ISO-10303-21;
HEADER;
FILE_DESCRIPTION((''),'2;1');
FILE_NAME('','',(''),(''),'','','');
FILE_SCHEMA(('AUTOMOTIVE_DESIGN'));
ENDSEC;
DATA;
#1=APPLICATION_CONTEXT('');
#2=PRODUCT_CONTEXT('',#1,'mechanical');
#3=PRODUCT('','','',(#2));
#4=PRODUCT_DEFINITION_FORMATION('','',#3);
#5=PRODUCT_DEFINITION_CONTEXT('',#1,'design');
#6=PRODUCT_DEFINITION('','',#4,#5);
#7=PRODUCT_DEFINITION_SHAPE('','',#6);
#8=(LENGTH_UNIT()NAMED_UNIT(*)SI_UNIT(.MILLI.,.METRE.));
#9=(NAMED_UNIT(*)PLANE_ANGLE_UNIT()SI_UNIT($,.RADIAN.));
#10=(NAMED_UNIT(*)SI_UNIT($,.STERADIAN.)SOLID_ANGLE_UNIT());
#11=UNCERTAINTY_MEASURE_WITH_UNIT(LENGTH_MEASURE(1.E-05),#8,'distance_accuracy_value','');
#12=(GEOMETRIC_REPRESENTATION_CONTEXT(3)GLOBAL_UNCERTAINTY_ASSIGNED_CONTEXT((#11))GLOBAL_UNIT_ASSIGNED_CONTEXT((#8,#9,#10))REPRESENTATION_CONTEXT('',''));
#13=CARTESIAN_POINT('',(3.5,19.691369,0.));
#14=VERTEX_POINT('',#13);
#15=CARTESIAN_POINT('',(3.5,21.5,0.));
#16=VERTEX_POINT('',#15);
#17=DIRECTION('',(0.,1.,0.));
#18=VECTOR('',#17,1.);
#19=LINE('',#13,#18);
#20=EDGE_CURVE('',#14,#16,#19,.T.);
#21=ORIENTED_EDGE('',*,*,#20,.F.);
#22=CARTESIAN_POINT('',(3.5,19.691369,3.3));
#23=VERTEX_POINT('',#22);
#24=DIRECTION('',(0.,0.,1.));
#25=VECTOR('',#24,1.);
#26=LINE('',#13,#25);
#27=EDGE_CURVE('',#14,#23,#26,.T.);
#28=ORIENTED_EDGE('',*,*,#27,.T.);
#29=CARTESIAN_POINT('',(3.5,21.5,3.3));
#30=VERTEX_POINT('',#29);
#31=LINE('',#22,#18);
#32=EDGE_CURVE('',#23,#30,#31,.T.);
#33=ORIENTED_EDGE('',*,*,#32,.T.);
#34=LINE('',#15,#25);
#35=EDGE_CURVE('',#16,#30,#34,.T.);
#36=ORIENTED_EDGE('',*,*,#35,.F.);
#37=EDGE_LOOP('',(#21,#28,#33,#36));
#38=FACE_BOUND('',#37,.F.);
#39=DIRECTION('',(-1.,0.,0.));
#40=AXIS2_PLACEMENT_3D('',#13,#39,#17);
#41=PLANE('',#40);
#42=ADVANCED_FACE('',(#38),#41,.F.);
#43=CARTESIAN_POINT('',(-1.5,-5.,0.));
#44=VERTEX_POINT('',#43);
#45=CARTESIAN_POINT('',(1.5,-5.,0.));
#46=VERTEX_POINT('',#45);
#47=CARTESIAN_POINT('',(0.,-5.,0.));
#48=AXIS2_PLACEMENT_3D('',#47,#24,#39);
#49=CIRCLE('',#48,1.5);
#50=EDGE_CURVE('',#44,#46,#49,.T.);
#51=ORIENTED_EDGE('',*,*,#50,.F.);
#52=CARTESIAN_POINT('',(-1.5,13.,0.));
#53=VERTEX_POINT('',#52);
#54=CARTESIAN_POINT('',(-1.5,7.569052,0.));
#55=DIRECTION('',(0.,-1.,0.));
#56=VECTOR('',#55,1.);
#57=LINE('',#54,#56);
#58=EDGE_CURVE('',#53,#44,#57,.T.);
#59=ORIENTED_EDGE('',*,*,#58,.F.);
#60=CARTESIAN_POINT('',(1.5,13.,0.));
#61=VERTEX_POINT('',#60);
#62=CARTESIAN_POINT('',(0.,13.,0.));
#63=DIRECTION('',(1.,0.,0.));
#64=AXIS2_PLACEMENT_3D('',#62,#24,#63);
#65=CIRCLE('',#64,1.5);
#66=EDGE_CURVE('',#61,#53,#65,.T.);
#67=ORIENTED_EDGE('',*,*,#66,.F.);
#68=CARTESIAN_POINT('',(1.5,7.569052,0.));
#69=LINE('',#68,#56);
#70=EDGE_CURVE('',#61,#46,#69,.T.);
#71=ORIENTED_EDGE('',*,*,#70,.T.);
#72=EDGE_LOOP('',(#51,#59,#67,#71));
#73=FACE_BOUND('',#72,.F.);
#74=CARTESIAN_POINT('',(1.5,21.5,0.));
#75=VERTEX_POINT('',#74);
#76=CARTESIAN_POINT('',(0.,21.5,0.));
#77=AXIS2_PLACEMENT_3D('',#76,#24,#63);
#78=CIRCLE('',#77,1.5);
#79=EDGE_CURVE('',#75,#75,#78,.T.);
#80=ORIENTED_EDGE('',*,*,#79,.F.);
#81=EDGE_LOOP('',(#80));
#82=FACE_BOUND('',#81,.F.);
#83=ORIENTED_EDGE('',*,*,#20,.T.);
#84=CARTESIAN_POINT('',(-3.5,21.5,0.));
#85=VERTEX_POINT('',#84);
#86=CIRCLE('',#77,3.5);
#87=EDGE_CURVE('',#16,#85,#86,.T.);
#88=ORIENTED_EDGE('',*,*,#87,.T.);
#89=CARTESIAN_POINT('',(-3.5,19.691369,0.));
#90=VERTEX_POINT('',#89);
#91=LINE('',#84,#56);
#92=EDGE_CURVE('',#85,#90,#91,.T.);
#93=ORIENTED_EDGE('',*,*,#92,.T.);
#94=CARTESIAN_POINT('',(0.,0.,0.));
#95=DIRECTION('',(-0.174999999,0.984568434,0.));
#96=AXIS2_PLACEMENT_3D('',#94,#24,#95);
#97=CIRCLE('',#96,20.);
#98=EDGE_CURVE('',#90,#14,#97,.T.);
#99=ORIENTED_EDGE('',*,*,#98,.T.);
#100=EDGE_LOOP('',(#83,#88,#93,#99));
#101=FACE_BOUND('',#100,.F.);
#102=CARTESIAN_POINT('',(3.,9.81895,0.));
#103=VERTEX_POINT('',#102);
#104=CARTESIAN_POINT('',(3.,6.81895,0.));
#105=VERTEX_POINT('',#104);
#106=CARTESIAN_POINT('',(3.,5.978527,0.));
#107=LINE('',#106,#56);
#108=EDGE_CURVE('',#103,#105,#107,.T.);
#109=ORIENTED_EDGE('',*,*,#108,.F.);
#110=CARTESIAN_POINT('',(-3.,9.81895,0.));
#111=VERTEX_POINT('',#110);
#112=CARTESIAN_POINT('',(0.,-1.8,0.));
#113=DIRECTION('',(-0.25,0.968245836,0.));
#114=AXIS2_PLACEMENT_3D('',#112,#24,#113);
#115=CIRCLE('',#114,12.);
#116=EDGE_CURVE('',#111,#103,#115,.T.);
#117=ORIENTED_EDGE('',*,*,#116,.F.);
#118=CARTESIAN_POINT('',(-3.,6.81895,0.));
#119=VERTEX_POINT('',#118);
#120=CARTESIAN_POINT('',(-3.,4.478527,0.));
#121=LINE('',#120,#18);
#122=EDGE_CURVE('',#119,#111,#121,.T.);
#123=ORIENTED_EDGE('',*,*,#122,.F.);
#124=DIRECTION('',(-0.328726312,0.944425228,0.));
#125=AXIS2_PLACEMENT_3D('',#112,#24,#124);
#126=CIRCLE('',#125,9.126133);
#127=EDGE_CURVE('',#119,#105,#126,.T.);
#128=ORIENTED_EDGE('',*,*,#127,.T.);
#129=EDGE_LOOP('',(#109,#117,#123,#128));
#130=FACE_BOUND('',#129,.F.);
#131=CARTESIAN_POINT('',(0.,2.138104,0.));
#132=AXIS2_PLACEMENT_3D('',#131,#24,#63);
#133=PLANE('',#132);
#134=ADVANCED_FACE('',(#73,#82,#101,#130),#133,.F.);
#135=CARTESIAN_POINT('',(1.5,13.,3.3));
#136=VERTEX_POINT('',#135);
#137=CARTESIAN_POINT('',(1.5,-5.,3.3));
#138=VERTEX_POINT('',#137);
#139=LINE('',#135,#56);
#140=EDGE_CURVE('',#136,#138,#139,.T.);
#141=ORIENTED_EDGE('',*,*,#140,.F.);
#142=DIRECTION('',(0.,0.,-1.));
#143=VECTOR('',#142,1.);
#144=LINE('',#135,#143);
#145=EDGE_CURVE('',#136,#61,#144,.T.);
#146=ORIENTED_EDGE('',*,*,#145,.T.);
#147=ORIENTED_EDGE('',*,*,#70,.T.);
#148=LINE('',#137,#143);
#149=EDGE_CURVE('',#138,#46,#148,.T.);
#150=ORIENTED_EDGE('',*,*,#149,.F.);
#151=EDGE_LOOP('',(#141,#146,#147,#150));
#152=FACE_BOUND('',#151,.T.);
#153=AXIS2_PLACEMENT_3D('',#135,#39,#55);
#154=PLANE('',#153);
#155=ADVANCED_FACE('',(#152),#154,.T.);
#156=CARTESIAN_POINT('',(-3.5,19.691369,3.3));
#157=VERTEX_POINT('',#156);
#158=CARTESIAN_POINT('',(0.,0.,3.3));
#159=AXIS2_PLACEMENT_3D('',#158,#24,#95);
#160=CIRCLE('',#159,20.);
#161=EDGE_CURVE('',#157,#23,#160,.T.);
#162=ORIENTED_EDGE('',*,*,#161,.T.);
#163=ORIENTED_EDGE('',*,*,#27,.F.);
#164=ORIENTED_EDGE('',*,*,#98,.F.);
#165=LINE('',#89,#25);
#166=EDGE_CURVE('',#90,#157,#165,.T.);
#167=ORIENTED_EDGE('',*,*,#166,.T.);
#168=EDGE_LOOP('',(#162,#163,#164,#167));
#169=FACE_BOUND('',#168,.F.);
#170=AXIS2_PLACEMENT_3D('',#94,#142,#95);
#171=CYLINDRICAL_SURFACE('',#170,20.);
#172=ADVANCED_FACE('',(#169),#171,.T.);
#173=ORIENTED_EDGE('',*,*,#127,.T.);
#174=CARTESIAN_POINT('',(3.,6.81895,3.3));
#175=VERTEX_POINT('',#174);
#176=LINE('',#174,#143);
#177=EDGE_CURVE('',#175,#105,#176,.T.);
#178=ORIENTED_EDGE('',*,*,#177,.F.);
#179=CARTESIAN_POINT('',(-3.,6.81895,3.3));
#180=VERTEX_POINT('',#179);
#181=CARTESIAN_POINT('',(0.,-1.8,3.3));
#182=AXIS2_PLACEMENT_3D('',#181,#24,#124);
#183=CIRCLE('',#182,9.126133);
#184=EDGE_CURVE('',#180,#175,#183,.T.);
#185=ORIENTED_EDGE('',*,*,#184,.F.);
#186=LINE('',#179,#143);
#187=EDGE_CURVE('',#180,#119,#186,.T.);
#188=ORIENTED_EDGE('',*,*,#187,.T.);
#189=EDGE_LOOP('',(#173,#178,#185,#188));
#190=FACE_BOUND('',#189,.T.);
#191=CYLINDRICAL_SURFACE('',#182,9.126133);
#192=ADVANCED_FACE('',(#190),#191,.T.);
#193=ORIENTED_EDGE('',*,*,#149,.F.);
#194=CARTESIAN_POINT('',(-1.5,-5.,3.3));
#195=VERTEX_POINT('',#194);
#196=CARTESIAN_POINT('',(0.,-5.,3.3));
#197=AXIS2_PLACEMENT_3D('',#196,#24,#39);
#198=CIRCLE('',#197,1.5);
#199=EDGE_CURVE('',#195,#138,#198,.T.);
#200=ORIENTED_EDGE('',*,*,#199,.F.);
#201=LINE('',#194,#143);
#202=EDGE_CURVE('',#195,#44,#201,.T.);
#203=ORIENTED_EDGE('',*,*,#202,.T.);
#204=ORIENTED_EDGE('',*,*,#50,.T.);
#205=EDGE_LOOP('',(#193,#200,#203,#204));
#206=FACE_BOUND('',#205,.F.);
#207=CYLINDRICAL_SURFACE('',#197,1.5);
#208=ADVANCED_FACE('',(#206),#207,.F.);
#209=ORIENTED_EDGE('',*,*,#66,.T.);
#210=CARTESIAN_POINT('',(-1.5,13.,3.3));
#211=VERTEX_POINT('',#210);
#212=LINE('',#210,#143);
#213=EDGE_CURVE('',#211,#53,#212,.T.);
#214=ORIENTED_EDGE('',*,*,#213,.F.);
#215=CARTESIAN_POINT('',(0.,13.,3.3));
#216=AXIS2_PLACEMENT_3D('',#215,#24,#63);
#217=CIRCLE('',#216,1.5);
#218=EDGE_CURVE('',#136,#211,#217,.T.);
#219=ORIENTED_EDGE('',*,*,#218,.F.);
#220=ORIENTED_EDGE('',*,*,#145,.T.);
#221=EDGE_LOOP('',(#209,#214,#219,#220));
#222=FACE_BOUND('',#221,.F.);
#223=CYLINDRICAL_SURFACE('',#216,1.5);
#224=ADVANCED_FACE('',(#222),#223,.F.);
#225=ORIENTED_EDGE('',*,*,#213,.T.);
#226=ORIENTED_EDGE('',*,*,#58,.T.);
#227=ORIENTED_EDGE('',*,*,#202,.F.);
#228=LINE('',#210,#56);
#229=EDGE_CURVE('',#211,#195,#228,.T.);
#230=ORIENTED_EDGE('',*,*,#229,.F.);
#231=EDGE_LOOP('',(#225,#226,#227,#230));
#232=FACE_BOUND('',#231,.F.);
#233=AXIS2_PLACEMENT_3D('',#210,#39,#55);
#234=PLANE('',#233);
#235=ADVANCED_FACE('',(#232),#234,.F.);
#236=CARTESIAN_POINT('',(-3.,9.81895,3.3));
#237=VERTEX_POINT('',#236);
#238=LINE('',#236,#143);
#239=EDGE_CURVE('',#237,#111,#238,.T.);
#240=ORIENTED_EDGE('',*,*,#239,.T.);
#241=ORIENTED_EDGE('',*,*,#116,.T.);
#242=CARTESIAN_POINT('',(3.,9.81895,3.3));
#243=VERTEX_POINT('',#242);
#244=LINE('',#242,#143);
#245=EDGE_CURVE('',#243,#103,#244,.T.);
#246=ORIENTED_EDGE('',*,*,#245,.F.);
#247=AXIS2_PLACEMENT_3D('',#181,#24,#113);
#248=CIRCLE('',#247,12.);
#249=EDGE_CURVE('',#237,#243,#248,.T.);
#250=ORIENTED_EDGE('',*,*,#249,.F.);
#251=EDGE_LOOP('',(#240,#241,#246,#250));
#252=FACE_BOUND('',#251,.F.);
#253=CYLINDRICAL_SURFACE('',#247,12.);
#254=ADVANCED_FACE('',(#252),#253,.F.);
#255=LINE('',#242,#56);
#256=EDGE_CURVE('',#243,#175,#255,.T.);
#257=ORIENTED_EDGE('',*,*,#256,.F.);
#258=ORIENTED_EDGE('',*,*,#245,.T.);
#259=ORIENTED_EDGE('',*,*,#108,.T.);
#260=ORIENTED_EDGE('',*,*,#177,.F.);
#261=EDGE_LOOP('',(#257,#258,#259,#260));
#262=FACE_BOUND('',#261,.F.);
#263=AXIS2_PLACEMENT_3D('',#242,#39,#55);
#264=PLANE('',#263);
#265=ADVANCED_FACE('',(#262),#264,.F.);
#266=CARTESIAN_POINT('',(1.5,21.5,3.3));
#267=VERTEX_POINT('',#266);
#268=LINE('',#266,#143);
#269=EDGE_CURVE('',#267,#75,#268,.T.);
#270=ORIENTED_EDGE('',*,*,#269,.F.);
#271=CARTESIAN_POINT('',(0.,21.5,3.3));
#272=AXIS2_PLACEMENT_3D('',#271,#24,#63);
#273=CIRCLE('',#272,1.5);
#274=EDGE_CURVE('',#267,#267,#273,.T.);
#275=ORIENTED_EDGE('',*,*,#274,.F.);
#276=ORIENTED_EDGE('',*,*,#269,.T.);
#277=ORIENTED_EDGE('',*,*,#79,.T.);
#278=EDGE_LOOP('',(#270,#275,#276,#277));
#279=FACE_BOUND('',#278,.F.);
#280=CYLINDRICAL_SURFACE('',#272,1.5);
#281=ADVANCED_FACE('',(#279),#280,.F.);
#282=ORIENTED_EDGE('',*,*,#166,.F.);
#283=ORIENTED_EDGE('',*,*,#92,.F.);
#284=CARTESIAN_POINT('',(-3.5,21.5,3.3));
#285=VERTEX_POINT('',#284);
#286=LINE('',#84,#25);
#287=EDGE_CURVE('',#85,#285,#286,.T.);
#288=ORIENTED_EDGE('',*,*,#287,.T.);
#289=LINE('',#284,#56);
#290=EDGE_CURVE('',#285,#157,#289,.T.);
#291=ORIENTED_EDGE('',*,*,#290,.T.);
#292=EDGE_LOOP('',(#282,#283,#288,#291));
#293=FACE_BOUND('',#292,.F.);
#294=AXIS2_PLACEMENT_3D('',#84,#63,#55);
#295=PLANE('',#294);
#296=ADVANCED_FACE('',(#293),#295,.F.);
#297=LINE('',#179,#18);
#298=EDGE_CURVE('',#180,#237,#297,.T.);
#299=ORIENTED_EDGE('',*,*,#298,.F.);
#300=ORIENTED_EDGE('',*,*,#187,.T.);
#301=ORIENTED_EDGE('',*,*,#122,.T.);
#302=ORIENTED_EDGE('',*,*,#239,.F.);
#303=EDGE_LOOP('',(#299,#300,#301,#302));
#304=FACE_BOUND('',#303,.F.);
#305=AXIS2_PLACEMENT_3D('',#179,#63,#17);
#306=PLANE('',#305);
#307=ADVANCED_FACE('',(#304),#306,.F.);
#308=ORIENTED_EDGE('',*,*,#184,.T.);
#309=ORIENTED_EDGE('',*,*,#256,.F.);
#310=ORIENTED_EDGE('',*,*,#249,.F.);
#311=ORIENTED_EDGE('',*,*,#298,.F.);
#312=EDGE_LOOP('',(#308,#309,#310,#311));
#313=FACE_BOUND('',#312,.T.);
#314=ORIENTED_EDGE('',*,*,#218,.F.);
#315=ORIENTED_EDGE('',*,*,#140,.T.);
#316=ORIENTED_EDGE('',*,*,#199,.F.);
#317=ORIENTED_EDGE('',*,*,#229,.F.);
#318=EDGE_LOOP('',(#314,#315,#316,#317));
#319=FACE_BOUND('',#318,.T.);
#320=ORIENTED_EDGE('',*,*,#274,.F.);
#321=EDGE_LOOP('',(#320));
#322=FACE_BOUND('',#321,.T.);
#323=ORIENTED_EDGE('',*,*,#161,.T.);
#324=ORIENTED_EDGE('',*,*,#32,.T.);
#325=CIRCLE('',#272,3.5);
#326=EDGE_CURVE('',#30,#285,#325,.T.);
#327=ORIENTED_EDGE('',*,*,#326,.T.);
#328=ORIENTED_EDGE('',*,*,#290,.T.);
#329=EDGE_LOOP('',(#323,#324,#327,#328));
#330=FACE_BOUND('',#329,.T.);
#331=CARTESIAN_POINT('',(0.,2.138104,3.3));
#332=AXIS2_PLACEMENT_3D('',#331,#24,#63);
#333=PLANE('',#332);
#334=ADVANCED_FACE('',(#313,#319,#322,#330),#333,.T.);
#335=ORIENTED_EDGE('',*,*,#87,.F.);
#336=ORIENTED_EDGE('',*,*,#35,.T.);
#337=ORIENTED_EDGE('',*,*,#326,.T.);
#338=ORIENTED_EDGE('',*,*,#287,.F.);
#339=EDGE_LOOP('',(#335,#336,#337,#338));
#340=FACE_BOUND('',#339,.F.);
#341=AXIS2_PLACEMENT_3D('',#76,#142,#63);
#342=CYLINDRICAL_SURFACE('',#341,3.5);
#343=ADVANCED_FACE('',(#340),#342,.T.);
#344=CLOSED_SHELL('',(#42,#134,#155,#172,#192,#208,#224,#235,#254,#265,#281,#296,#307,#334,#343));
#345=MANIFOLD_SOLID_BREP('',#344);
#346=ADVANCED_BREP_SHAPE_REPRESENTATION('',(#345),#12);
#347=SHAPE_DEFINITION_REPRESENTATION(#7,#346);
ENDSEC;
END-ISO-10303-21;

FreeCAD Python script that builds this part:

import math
import FreeCAD as App
import Part
import Sketcher

V = App.Vector
Q = App.Units.Quantity

doc = App.newDocument("Part")
body = doc.addObject("PartDesign::Body", "Body")

# Sketch on XY plane
sketch1 = doc.addObject("Sketcher::SketchObject", "Sketch")
body.addObject(sketch1)
sketch1.AttachmentSupport = (doc.XY_Plane, [""])
sketch1.MapMode = "FlatFace"
sketch1.addGeometry(Part.ArcOfCircle(Part.Circle(V(0, 21.5, 0), V(0, 0, 1), 3.5), math.radians(0), math.radians(180)), False)
sketch1.addGeometry(Part.LineSegment(V(-3.5, 21.5, 0), V(-3.5, 19.691369, 0)), False)
sketch1.addGeometry(Part.ArcOfCircle(Part.Circle(V(0, 0, 0), V(0, 0, 1), 20), math.radians(100.078658), math.radians(439.921342)), False)
sketch1.addGeometry(Part.LineSegment(V(3.5, 19.691369, 0), V(3.5, 21.5, 0)), False)
sketch1.addConstraint(Sketcher.Constraint("Tangent", 0, 2, 1, 1))
sketch1.addConstraint(Sketcher.Constraint("Coincident", 1, 2, 2, 1))
sketch1.addConstraint(Sketcher.Constraint("Coincident", 2, 2, 3, 1))
sketch1.addConstraint(Sketcher.Constraint("Tangent", 3, 2, 0, 1))
sketch1.addConstraint(Sketcher.Constraint("Vertical", 1))
sketch1.addConstraint(Sketcher.Constraint("Vertical", 3))
sketch1.addConstraint(Sketcher.Constraint("Coincident", 2, 3, -1, 1))
sketch1.addConstraint(Sketcher.Constraint("PointOnObject", 0, 3, -2))
sketch1.addConstraint(Sketcher.Constraint("Radius", 2, Q("20 mm")))
sketch1.addConstraint(Sketcher.Constraint("Radius", 0, Q("3.5 mm")))
sketch1.addConstraint(Sketcher.Constraint("DistanceY", -1, 1, 0, 3, Q("21.5 mm")))
pad1 = doc.addObject("PartDesign::Pad", "Pad")
body.addObject(pad1)
pad1.Profile = sketch1
pad1.Length = 3.3

# Sketch on XY plane
sketch2 = doc.addObject("Sketcher::SketchObject", "Sketch001")
body.addObject(sketch2)
sketch2.AttachmentSupport = (doc.XY_Plane, [""])
sketch2.MapMode = "FlatFace"
sketch2.AttachmentOffset = App.Placement(V(0, 0, 3.3), App.Rotation())
sketch2.addGeometry(Part.Circle(V(0, 21.5, 0), V(0, 0, 1), 1.5), False)
sketch2.addConstraint(Sketcher.Constraint("PointOnObject", 0, 3, -2))
sketch2.addConstraint(Sketcher.Constraint("Diameter", 0, Q("3 mm")))
sketch2.addConstraint(Sketcher.Constraint("DistanceY", -1, 1, 0, 3, Q("21.5 mm")))
pocket1 = doc.addObject("PartDesign::Pocket", "Pocket")
body.addObject(pocket1)
pocket1.Profile = sketch2
pocket1.Type = "ThroughAll"

# Sketch on XY plane
sketch3 = doc.addObject("Sketcher::SketchObject", "Sketch002")
body.addObject(sketch3)
sketch3.AttachmentSupport = (doc.XY_Plane, [""])
sketch3.MapMode = "FlatFace"
sketch3.AttachmentOffset = App.Placement(V(0, 0, 3.3), App.Rotation())
sketch3.addGeometry(Part.LineSegment(V(-1.5, 13, 0), V(-1.5, -5, 0)), False)
sketch3.addGeometry(Part.ArcOfCircle(Part.Circle(V(0, -5, 0), V(0, 0, 1), 1.5), math.radians(180), math.radians(360)), False)
sketch3.addGeometry(Part.LineSegment(V(1.5, -5, 0), V(1.5, 13, 0)), False)
sketch3.addGeometry(Part.ArcOfCircle(Part.Circle(V(0, 13, 0), V(0, 0, 1), 1.5), math.radians(0), math.radians(180)), False)
sketch3.addGeometry(Part.ArcOfCircle(Part.Circle(V(0, -1.8, 0), V(0, 0, 1), 9.1), math.radians(109), math.radians(431)), False)
sketch3.addGeometry(Part.LineSegment(V(-3, 6.8, 0), V(-3, 9.8, 0)), False)
sketch3.addGeometry(Part.ArcOfCircle(Part.Circle(V(0, -1.8, 0), V(0, 0, 1), 12), math.radians(104), math.radians(436)), False)
sketch3.addGeometry(Part.LineSegment(V(3, 9.8, 0), V(3, 6.8, 0)), False)
sketch3.addConstraint(Sketcher.Constraint("Tangent", 0, 2, 1, 1))
sketch3.addConstraint(Sketcher.Constraint("Tangent", 1, 2, 2, 1))
sketch3.addConstraint(Sketcher.Constraint("Tangent", 2, 2, 3, 1))
sketch3.addConstraint(Sketcher.Constraint("Tangent", 3, 2, 0, 1))
sketch3.addConstraint(Sketcher.Constraint("Coincident", 4, 1, 5, 1))
sketch3.addConstraint(Sketcher.Constraint("Coincident", 5, 2, 6, 1))
sketch3.addConstraint(Sketcher.Constraint("Coincident", 6, 2, 7, 1))
sketch3.addConstraint(Sketcher.Constraint("Coincident", 7, 2, 4, 2))
sketch3.addConstraint(Sketcher.Constraint("Vertical", 0))
sketch3.addConstraint(Sketcher.Constraint("Vertical", 2))
sketch3.addConstraint(Sketcher.Constraint("Vertical", 5))
sketch3.addConstraint(Sketcher.Constraint("Vertical", 7))
sketch3.addConstraint(Sketcher.Constraint("Coincident", 6, 3, 4, 3))
sketch3.addConstraint(Sketcher.Constraint("Symmetric", 5, 2, 6, 2, -2))
sketch3.addConstraint(Sketcher.Constraint("PointOnObject", 1, 3, -2))
sketch3.addConstraint(Sketcher.Constraint("Radius", 6, Q("12 mm")))
sketch3.addConstraint(Sketcher.Constraint("Radius", 1, Q("1.5 mm")))
sketch3.addConstraint(Sketcher.Constraint("DistanceY", 0, 2, 0, 1, Q("18 mm")))
sketch3.addConstraint(Sketcher.Constraint("DistanceY", 5, 1, 5, 2, Q("3 mm")))
sketch3.addConstraint(Sketcher.Constraint("DistanceY", 1, 3, -1, 1, Q("5 mm")))
sketch3.addConstraint(Sketcher.Constraint("DistanceX", 4, 1, -1, 1, Q("3 mm")))
sketch3.addConstraint(Sketcher.Constraint("DistanceY", 4, 3, -1, 1, Q("1.8 mm")))
pocket2 = doc.addObject("PartDesign::Pocket", "Pocket001")
body.addObject(pocket2)
pocket2.Profile = sketch3
pocket2.Type = "ThroughAll"

doc.recompute()
